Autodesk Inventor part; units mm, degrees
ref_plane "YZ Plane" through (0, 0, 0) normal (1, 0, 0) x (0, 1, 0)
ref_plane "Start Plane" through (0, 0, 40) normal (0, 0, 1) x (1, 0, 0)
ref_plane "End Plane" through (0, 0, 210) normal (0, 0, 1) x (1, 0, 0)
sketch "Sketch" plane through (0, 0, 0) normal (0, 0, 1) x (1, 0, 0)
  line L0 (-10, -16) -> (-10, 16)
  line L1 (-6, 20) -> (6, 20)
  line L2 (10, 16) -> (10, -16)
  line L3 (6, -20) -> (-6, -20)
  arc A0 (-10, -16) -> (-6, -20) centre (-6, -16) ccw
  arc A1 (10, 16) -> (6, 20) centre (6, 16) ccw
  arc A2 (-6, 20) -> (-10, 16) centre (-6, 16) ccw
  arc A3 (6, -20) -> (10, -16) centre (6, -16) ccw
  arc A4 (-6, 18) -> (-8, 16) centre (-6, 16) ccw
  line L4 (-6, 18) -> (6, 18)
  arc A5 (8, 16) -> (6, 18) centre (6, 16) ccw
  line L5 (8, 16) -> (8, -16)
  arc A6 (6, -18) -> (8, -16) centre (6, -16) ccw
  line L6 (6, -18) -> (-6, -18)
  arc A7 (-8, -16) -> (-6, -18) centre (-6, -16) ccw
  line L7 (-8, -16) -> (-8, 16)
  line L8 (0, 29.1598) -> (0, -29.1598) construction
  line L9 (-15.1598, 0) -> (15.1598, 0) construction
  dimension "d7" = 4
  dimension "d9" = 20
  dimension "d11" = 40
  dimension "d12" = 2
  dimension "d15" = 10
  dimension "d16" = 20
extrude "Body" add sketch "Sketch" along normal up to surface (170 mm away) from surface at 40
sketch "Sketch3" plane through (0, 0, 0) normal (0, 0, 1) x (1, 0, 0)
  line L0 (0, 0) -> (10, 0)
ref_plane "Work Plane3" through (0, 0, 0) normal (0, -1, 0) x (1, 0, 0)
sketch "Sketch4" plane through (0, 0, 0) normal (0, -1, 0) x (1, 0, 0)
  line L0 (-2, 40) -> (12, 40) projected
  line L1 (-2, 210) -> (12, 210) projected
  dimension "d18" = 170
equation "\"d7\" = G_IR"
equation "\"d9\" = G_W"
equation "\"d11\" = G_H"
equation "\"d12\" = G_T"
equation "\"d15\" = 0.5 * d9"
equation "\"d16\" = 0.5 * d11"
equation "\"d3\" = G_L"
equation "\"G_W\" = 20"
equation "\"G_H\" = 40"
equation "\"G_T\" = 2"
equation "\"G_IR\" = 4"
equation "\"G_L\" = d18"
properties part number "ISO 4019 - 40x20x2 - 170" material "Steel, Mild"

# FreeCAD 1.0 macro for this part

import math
import FreeCAD as App
import Part
import Sketcher
Q = App.Units.Quantity

doc = App.newDocument("Part")
params = doc.addObject("Spreadsheet::Sheet", "Params")
for row, (alias, value) in enumerate([
    ("sketch1_radius", "4 mm"),
    ("sketch1_radius2", "2 mm"),
    ("pad1_length", "170 mm"),
], start=1):
    params.set(f"A{row}", alias)
    params.set(f"B{row}", "=" + value)
    params.setAlias(f"B{row}", alias)

body = doc.addObject("PartDesign::Body", "Body")

# Sketch on XY plane
sketch1 = doc.addObject("Sketcher::SketchObject", "Sketch")
body.addObject(sketch1)
sketch1.AttachmentSupport = (doc.XY_Plane, [""])
sketch1.MapMode = "FlatFace"
sketch1.AttachmentOffset = App.Placement(App.Vector(0, 0, 40), App.Rotation())
sketch1.addGeometry([
    Part.LineSegment(App.Vector(-10, 16, 0), App.Vector(-10, -16, 0)),  # 0
    Part.ArcOfCircle(Part.Circle(App.Vector(-6, -16, 0), App.Vector(0, 0, 1), 4), math.radians(180), math.radians(270)),  # 1
    Part.LineSegment(App.Vector(-6, -20, 0), App.Vector(6, -20, 0)),  # 2
    Part.ArcOfCircle(Part.Circle(App.Vector(6, -16, 0), App.Vector(0, 0, 1), 4), math.radians(-90), math.radians(0)),  # 3
    Part.LineSegment(App.Vector(10, -16, 0), App.Vector(10, 16, 0)),  # 4
    Part.ArcOfCircle(Part.Circle(App.Vector(6, 16, 0), App.Vector(0, 0, 1), 4), math.radians(0), math.radians(90)),  # 5
    Part.LineSegment(App.Vector(6, 20, 0), App.Vector(-6, 20, 0)),  # 6
    Part.ArcOfCircle(Part.Circle(App.Vector(-6, 16, 0), App.Vector(0, 0, 1), 4), math.radians(90), math.radians(180)),  # 7
    Part.ArcOfCircle(Part.Circle(App.Vector(-6, 16, 0), App.Vector(0, 0, 1), 2), math.radians(90), math.radians(180)),  # 8
    Part.LineSegment(App.Vector(-6, 18, 0), App.Vector(6, 18, 0)),  # 9
    Part.ArcOfCircle(Part.Circle(App.Vector(6, 16, 0), App.Vector(0, 0, 1), 2), math.radians(0), math.radians(90)),  # 10
    Part.LineSegment(App.Vector(8, 16, 0), App.Vector(8, -16, 0)),  # 11
    Part.ArcOfCircle(Part.Circle(App.Vector(6, -16, 0), App.Vector(0, 0, 1), 2), math.radians(-90), math.radians(0)),  # 12
    Part.LineSegment(App.Vector(6, -18, 0), App.Vector(-6, -18, 0)),  # 13
    Part.ArcOfCircle(Part.Circle(App.Vector(-6, -16, 0), App.Vector(0, 0, 1), 2), math.radians(180), math.radians(270)),  # 14
    Part.LineSegment(App.Vector(-8, -16, 0), App.Vector(-8, 16, 0)),  # 15
], False)
sketch1.addConstraint([
    Sketcher.Constraint("Tangent", 0, 2, 1, 1),
    Sketcher.Constraint("Tangent", 1, 2, 2, 1),
    Sketcher.Constraint("Tangent", 2, 2, 3, 1),
    Sketcher.Constraint("Tangent", 3, 2, 4, 1),
    Sketcher.Constraint("Tangent", 4, 2, 5, 1),
    Sketcher.Constraint("Tangent", 5, 2, 6, 1),
    Sketcher.Constraint("Tangent", 6, 2, 7, 1),
    Sketcher.Constraint("Tangent", 7, 2, 0, 1),
    Sketcher.Constraint("Tangent", 8, 1, 9, 1),
    Sketcher.Constraint("Tangent", 9, 2, 10, 2),
    Sketcher.Constraint("Tangent", 10, 1, 11, 1),
    Sketcher.Constraint("Tangent", 11, 2, 12, 2),
    Sketcher.Constraint("Tangent", 12, 1, 13, 1),
    Sketcher.Constraint("Tangent", 13, 2, 14, 2),
    Sketcher.Constraint("Tangent", 14, 1, 15, 1),
    Sketcher.Constraint("Tangent", 15, 2, 8, 2),
    Sketcher.Constraint("Vertical", 0),
    Sketcher.Constraint("Horizontal", 2),
    Sketcher.Constraint("Vertical", 4),
    Sketcher.Constraint("Horizontal", 6),
    Sketcher.Constraint("Horizontal", 9),
    Sketcher.Constraint("Vertical", 11),
    Sketcher.Constraint("Horizontal", 13),
    Sketcher.Constraint("Vertical", 15),
    Sketcher.Constraint("Coincident", 8, 3, 7, 3),
    Sketcher.Constraint("Coincident", 10, 3, 5, 3),
    Sketcher.Constraint("Coincident", 12, 3, 3, 3),
    Sketcher.Constraint("Equal", 1, 3),
    Sketcher.Constraint("Equal", 3, 5),
    Sketcher.Constraint("Equal", 5, 7),
    Sketcher.Constraint("Equal", 12, 14),
    Sketcher.Constraint("Symmetric", 1, 3, 5, 3, -1, 1),
    Sketcher.Constraint("Radius", 1, Q("4 mm")),
    Sketcher.Constraint("Radius", 8, Q("2 mm")),
    Sketcher.Constraint("DistanceX", 0, 2, -1, 1, Q("10 mm")),
    Sketcher.Constraint("DistanceY", 1, 2, -1, 1, Q("20 mm")),
])
sketch1.setExpression("Constraints[32]", "Params.sketch1_radius")
sketch1.setExpression("Constraints[33]", "Params.sketch1_radius2")
pad1 = doc.addObject("PartDesign::Pad", "Pad")
body.addObject(pad1)
pad1.Profile = sketch1
pad1.setExpression("Length", "Params.pad1_length")

doc.recompute()
